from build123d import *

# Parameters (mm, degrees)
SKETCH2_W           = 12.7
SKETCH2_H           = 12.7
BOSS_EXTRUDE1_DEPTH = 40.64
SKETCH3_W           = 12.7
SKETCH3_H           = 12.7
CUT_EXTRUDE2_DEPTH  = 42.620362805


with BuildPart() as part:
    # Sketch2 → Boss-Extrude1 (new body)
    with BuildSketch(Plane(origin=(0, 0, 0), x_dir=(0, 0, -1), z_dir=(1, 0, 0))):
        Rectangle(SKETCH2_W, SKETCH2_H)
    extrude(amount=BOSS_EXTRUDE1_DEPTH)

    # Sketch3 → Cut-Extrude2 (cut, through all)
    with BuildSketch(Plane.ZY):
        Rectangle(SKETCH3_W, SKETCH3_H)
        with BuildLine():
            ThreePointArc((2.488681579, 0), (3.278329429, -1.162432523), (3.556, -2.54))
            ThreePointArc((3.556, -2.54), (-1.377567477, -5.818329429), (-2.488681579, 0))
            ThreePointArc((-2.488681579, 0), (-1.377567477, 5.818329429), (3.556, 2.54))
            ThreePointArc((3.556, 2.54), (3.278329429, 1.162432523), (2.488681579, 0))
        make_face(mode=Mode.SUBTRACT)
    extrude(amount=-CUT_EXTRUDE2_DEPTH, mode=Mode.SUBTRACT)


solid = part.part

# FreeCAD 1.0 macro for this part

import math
import FreeCAD as App
import Part
import Sketcher

V = App.Vector
Q = App.Units.Quantity


def add_polygon(sketch, points):
    """Adds a closed chain of lines whose ends are joined by coincident constraints."""
    first, n = sketch.GeometryCount, len(points)
    for a, b in zip(points, points[1:] + points[:1]):
        sketch.addGeometry(Part.LineSegment(App.Vector(*a, 0), App.Vector(*b, 0)), False)
    for i in range(n):
        sketch.addConstraint(Sketcher.Constraint("Coincident", first + i, 2, first + (i + 1) % n, 1))

doc = App.newDocument("Part")
body = doc.addObject("PartDesign::Body", "Body")

# Sketch on YZ plane
sketch1 = body.newObject("Sketcher::SketchObject", "Sketch")
sketch1.AttachmentSupport = (doc.getObject("YZ_Plane"), [""])
sketch1.MapMode = "FlatFace"
add_polygon(sketch1, [(6.35, 6.35), (-6.35, 6.35), (-6.35, -6.35), (6.35, -6.35)])  # lines 0-3
sketch1.addConstraint([
    Sketcher.Constraint("Horizontal", 0),
    Sketcher.Constraint("Vertical", 1),
    Sketcher.Constraint("Horizontal", 2),
    Sketcher.Constraint("Vertical", 3),
    Sketcher.Constraint("Symmetric", 0, 2, 2, 2, -1, 1),
    Sketcher.Constraint("Equal", 2, 1),
    Sketcher.Constraint("DistanceX", 0, 2, 0, 1, Q("0.5 in")),
])
pad1 = body.newObject("PartDesign::Pad", "Pad")
pad1.Profile = sketch1
pad1.Length = Q("1.6 in")

# Sketch on YZ plane
sketch2 = body.newObject("Sketcher::SketchObject", "Sketch001")
sketch2.AttachmentSupport = (doc.getObject("YZ_Plane"), [""])
sketch2.MapMode = "FlatFace"
add_polygon(sketch2, [(6.35, -6.35), (-6.35, -6.35), (-6.35, 6.35), (6.35, 6.35)])  # lines 0-3
sketch2.addGeometry(Part.ArcOfCircle(Part.Circle(V(2.54, 0, 0), V(0, 0, 1), 3.556), math.radians(90), math.radians(135.584691)), False)  # 4
sketch2.addGeometry(Part.ArcOfCircle(Part.Circle(V(-2.54, 0, 0), V(0, 0, 1), 3.556), math.radians(44.415309), math.radians(90)), False)  # 5
sketch2.addGeometry(Part.ArcOfCircle(Part.Circle(V(-2.54, 0, 0), V(0, 0, 1), 3.556), math.radians(90), math.radians(315.584691)), False)  # 6
sketch2.addGeometry(Part.ArcOfCircle(Part.Circle(V(2.54, 0, 0), V(0, 0, 1), 3.556), math.radians(-135.584691), math.radians(90)), False)  # 7
sketch2.addConstraint([
    Sketcher.Constraint("Coincident", 4, 2, 5, 1),
    Sketcher.Constraint("Tangent", 5, 2, 6, 1),
    Sketcher.Constraint("Coincident", 6, 2, 7, 1),
    Sketcher.Constraint("Tangent", 7, 2, 4, 1),
    Sketcher.Constraint("Horizontal", 0),
    Sketcher.Constraint("Vertical", 1),
    Sketcher.Constraint("Horizontal", 2),
    Sketcher.Constraint("Vertical", 3),
    Sketcher.Constraint("Equal", 4, 5),
    Sketcher.Constraint("Equal", 5, 6),
    Sketcher.Constraint("Equal", 6, 7),
    Sketcher.Constraint("Symmetric", 4, 3, 5, 3, -1, 1),
    Sketcher.Constraint("Symmetric", 0, 2, 2, 2, -1, 1),
    Sketcher.Constraint("Symmetric", 5, 2, 7, 2, -2),
    Sketcher.Constraint("Vertical", 6, 3, 5, 2),
    Sketcher.Constraint("Equal", 2, 1),
    Sketcher.Constraint("Radius", 4, Q("0.14 in")),
    Sketcher.Constraint("DistanceX", 0, 2, 0, 1, Q("0.5 in")),
    Sketcher.Constraint("DistanceX", -1, 1, 4, 3, Q("0.1 in")),
])
pocket1 = body.newObject("PartDesign::Pocket", "Pocket")
pocket1.Profile = sketch2
pocket1.Type = "ThroughAll"
pocket1.Reversed = True

doc.recompute()
